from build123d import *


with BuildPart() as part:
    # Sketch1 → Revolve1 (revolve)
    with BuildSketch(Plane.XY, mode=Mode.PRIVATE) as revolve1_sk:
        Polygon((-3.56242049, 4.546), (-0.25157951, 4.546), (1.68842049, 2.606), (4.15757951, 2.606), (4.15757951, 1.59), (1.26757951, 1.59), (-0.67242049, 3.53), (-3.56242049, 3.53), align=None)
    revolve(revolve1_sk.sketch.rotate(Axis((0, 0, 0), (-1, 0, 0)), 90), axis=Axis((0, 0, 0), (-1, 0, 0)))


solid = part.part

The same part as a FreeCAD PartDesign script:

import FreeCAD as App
import Part
import Sketcher

V = App.Vector
Q = App.Units.Quantity


def add_polygon(sketch, points):
    """Adds a closed chain of lines whose ends are joined by coincident constraints."""
    first, n = sketch.GeometryCount, len(points)
    for a, b in zip(points, points[1:] + points[:1]):
        sketch.addGeometry(Part.LineSegment(App.Vector(*a, 0), App.Vector(*b, 0)), False)
    for i in range(n):
        sketch.addConstraint(Sketcher.Constraint("Coincident", first + i, 2, first + (i + 1) % n, 1))

doc = App.newDocument("Part")
body = doc.addObject("PartDesign::Body", "Body")

sketch1 = doc.addObject("Sketcher::SketchObject", "Sketch")
body.addObject(sketch1)
sketch1.AttachmentSupport = (doc.XY_Plane, [""])
sketch1.MapMode = "FlatFace"
add_polygon(sketch1, [(-0.25158, 4.546), (-3.56242, 4.546), (-3.56242, 3.53), (-0.67242, 3.53), (1.26758, 1.59), (4.15758, 1.59), (4.15758, 2.606), (1.68842, 2.606)])
sketch1.addConstraint(Sketcher.Constraint("Horizontal", 0))
sketch1.addConstraint(Sketcher.Constraint("Vertical", 1))
sketch1.addConstraint(Sketcher.Constraint("Horizontal", 2))
sketch1.addConstraint(Sketcher.Constraint("Horizontal", 4))
sketch1.addConstraint(Sketcher.Constraint("Vertical", 5))
sketch1.addConstraint(Sketcher.Constraint("Horizontal", 6))
sketch1.addConstraint(Sketcher.Constraint("Parallel", 3, 7))
sketch1.addConstraint(Sketcher.Constraint("Equal", 2, 4))
sketch1.addConstraint(Sketcher.Constraint("Equal", 1, 5))
sketch1.addConstraint(Sketcher.Constraint("Angle", 3, Q("-45 deg")))
sketch1.addConstraint(Sketcher.Constraint("DistanceY", 1, 2, 1, 1, Q("0.04 in")))
sketch1.addConstraint(Sketcher.Constraint("DistanceX", 2, 1, 2, 2, Q("2.89 mm")))
sketch1.addConstraint(Sketcher.Constraint("DistanceX", 0, 2, 0, 1, Q("3.310841 mm")))
sketch1.addConstraint(Sketcher.Constraint("DistanceY", -1, 1, 0, 2, Q("4.546 mm")))
sketch1.addConstraint(Sketcher.Constraint("DistanceY", -1, 1, 3, 2, Q("1.59 mm")))
sketch1.addConstraint(Sketcher.Constraint("DistanceX", 0, 2, -1, 1, Q("3.56242 mm")))
revolution = doc.addObject("PartDesign::Revolution", "Revolution")
body.addObject(revolution)
revolution.Profile = sketch1
revolution.ReferenceAxis = (sketch1, ["H_Axis"])
revolution.Angle = 360

doc.recompute()
